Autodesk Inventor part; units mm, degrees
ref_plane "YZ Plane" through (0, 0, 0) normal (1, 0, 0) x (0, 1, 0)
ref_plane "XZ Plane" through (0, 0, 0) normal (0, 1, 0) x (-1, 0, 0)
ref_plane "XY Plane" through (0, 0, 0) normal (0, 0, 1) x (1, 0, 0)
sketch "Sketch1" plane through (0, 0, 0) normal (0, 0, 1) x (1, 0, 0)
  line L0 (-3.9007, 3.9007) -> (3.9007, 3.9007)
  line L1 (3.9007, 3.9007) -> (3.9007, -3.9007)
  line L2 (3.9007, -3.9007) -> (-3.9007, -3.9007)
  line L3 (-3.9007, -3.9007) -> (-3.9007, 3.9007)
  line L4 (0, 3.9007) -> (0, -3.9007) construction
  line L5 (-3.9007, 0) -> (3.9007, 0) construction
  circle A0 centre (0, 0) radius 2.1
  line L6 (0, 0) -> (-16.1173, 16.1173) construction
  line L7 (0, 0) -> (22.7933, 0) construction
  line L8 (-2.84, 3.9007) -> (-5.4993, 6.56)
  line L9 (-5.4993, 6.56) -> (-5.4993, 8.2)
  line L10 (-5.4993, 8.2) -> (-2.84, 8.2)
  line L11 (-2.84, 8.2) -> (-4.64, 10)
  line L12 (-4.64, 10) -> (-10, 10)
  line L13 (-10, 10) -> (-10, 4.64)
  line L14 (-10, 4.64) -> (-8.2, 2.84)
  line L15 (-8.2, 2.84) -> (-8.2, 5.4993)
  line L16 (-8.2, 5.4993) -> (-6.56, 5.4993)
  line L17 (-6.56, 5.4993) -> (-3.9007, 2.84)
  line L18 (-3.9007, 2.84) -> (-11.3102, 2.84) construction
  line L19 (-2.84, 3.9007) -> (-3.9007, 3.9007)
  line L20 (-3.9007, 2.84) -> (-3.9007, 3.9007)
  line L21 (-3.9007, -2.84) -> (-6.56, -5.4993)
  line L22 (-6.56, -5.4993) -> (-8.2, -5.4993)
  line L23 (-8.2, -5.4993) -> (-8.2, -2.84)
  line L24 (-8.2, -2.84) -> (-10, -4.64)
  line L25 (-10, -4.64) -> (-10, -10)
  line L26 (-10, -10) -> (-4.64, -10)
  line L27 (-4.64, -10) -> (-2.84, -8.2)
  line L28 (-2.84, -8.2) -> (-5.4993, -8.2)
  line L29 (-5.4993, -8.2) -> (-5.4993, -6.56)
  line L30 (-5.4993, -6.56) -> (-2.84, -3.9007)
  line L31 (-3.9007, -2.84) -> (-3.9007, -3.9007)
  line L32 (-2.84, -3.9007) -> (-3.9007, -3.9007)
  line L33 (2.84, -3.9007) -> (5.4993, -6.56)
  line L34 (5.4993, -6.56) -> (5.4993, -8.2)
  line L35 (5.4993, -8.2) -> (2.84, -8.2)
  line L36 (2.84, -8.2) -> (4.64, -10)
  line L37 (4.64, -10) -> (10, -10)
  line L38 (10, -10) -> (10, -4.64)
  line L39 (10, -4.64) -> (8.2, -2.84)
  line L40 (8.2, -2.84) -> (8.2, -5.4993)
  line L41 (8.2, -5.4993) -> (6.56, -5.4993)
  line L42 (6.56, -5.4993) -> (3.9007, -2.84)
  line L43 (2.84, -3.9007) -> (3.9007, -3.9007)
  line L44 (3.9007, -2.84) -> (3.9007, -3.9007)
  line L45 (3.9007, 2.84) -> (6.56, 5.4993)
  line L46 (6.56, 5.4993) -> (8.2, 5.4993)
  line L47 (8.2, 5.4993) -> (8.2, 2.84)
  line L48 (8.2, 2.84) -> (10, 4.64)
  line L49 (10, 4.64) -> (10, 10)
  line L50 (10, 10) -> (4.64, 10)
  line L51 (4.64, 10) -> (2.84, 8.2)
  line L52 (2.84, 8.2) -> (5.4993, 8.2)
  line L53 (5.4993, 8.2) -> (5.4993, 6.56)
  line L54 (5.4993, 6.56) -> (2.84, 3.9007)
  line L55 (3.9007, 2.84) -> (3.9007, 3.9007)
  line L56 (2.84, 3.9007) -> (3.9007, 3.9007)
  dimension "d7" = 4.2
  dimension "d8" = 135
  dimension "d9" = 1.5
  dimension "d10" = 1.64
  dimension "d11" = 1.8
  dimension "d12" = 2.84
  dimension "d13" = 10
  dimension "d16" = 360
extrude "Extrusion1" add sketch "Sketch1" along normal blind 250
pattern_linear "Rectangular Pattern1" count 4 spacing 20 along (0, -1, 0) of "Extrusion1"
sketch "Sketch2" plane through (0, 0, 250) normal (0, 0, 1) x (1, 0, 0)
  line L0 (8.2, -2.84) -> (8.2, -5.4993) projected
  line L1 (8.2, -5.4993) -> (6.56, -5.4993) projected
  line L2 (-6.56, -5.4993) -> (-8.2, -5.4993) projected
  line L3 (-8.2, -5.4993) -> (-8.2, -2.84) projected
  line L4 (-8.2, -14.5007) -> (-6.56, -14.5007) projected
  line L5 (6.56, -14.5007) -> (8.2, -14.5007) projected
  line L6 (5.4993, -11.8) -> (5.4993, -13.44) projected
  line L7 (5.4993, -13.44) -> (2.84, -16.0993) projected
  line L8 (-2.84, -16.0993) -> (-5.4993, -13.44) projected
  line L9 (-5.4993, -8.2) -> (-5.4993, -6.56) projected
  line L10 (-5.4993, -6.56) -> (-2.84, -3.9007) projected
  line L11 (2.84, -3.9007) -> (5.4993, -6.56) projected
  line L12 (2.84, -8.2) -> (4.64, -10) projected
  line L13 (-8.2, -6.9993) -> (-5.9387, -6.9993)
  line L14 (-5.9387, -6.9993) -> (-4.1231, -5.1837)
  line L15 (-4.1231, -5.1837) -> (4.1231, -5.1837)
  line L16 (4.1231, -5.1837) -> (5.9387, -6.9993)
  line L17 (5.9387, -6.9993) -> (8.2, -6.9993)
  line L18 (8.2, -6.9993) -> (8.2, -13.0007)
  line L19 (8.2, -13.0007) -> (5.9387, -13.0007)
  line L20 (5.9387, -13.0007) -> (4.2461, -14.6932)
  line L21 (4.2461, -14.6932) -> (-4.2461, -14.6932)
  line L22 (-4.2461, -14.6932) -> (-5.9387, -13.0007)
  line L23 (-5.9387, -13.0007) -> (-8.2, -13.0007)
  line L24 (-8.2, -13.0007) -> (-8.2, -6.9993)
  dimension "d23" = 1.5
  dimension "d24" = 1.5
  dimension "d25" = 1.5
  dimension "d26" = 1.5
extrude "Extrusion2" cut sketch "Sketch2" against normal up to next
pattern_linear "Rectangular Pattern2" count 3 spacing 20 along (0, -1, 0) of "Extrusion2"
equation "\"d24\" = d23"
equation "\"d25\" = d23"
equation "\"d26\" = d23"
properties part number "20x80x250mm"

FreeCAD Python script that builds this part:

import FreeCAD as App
import Part
import Sketcher


def add_polygon(sketch, points):
    """Adds a closed chain of lines whose ends are joined by coincident constraints."""
    first, n = sketch.GeometryCount, len(points)
    for a, b in zip(points, points[1:] + points[:1]):
        sketch.addGeometry(Part.LineSegment(App.Vector(*a, 0), App.Vector(*b, 0)), False)
    for i in range(n):
        sketch.addConstraint(Sketcher.Constraint("Coincident", first + i, 2, first + (i + 1) % n, 1))

doc = App.newDocument("Part")
params = doc.addObject("Spreadsheet::Sheet", "Params")
for row, (alias, value) in enumerate([
    ("sketch1_diameter", "4.2 mm"),
    ("sketch1_width", "1.64 mm"),
    ("pad1_length", "250 mm"),
    ("linearpattern_pitch", "20 mm"),
    ("pocket1_length", "250 mm"),
    ("linearpattern2_pitch", "20 mm"),
], start=1):
    params.set(f"A{row}", alias)
    params.set(f"B{row}", "=" + value)
    params.setAlias(f"B{row}", alias)

body = doc.addObject("PartDesign::Body", "Body")

sketch1 = body.newObject("Sketcher::SketchObject", "Sketch")
sketch1.AttachmentSupport = (doc.getObject("XY_Plane"), [""])
sketch1.MapMode = "FlatFace"
add_polygon(sketch1, [(-6.6, 5.5), (-3.9, 2.8), (-3.9, -2.8), (-6.6, -5.5), (-8.2, -5.5), (-8.2, -2.8), (-10, -4.6), (-10, -10), (-4.6, -10), (-2.8, -8.2), (-5.5, -8.2), (-5.5, -6.6), (-2.8, -3.9), (2.8, -3.9), (5.5, -6.6), (5.5, -8.2), (2.8, -8.2), (4.6, -10), (10, -10), (10, -4.6), (8.2, -2.8), (8.2, -5.5), (6.6, -5.5), (3.9, -2.8), (3.9, 2.8), (6.6, 5.5), (8.2, 5.5), (8.2, 2.8), (10, 4.6), (10, 10), (4.6, 10), (2.8, 8.2), (5.5, 8.2), (5.5, 6.6), (2.8, 3.9), (-2.8, 3.9), (-5.5, 6.6), (-5.5, 8.2), (-2.8, 8.2), (-4.6, 10), (-10, 10), (-10, 4.6), (-8.2, 2.8), (-8.2, 5.5)])
sketch1.addGeometry(Part.Circle(App.Vector(0, 0, 0), App.Vector(0, 0, 1), 2.1), False)
sketch1.addConstraint(Sketcher.Constraint("Vertical", 1))
sketch1.addConstraint(Sketcher.Constraint("Horizontal", 3))
sketch1.addConstraint(Sketcher.Constraint("Vertical", 4))
sketch1.addConstraint(Sketcher.Constraint("Vertical", 6))
sketch1.addConstraint(Sketcher.Constraint("Horizontal", 7))
sketch1.addConstraint(Sketcher.Constraint("Horizontal", 9))
sketch1.addConstraint(Sketcher.Constraint("Vertical", 10))
sketch1.addConstraint(Sketcher.Constraint("Horizontal", 12))
sketch1.addConstraint(Sketcher.Constraint("Vertical", 14))
sketch1.addConstraint(Sketcher.Constraint("Horizontal", 15))
sketch1.addConstraint(Sketcher.Constraint("Horizontal", 17))
sketch1.addConstraint(Sketcher.Constraint("Vertical", 18))
sketch1.addConstraint(Sketcher.Constraint("Vertical", 20))
sketch1.addConstraint(Sketcher.Constraint("Horizontal", 21))
sketch1.addConstraint(Sketcher.Constraint("Vertical", 23))
sketch1.addConstraint(Sketcher.Constraint("Horizontal", 25))
sketch1.addConstraint(Sketcher.Constraint("Vertical", 26))
sketch1.addConstraint(Sketcher.Constraint("Vertical", 28))
sketch1.addConstraint(Sketcher.Constraint("Horizontal", 29))
sketch1.addConstraint(Sketcher.Constraint("Horizontal", 31))
sketch1.addConstraint(Sketcher.Constraint("Vertical", 32))
sketch1.addConstraint(Sketcher.Constraint("Horizontal", 34))
sketch1.addConstraint(Sketcher.Constraint("Vertical", 36))
sketch1.addConstraint(Sketcher.Constraint("Horizontal", 37))
sketch1.addConstraint(Sketcher.Constraint("Horizontal", 39))
sketch1.addConstraint(Sketcher.Constraint("Vertical", 40))
sketch1.addConstraint(Sketcher.Constraint("Vertical", 42))
sketch1.addConstraint(Sketcher.Constraint("Horizontal", 43))
sketch1.addConstraint(Sketcher.Constraint("Coincident", 44, 3, -1, 1))
sketch1.addConstraint(Sketcher.Constraint("Symmetric", 0, 2, 22, 2, -1, 1))
sketch1.addConstraint(Sketcher.Constraint("Symmetric", 2, 2, 24, 2, -1, 1))
sketch1.addConstraint(Sketcher.Constraint("Symmetric", 4, 2, 26, 2, -1, 1))
sketch1.addConstraint(Sketcher.Constraint("Symmetric", 5, 2, 27, 2, -1, 1))
sketch1.addConstraint(Sketcher.Constraint("Symmetric", 7, 2, 29, 2, -1, 1))
sketch1.addConstraint(Sketcher.Constraint("Symmetric", 8, 2, 30, 2, -1, 1))
sketch1.addConstraint(Sketcher.Constraint("Symmetric", 10, 2, 32, 2, -1, 1))
sketch1.addConstraint(Sketcher.Constraint("Symmetric", 11, 2, 33, 2, -1, 1))
sketch1.addConstraint(Sketcher.Constraint("Symmetric", 13, 2, 35, 2, -1, 1))
sketch1.addConstraint(Sketcher.Constraint("Symmetric", 15, 2, 37, 2, -1, 1))
sketch1.addConstraint(Sketcher.Constraint("Symmetric", 16, 2, 38, 2, -1, 1))
sketch1.addConstraint(Sketcher.Constraint("Symmetric", 18, 2, 40, 2, -1, 1))
sketch1.addConstraint(Sketcher.Constraint("Symmetric", 19, 2, 41, 2, -1, 1))
sketch1.addConstraint(Sketcher.Constraint("Symmetric", 21, 2, 43, 2, -1, 1))
sketch1.addConstraint(Sketcher.Constraint("Symmetric", 10, 2, 13, 2, -2))
sketch1.addConstraint(Sketcher.Constraint("Symmetric", 8, 2, 15, 2, -2))
sketch1.addConstraint(Sketcher.Constraint("Symmetric", 7, 2, 16, 2, -2))
sketch1.addConstraint(Sketcher.Constraint("Symmetric", 5, 2, 18, 2, -2))
sketch1.addConstraint(Sketcher.Constraint("Symmetric", 4, 2, 19, 2, -2))
sketch1.addConstraint(Sketcher.Constraint("Symmetric", 2, 2, 21, 2, -2))
sketch1.addConstraint(Sketcher.Constraint("Perpendicular", 0, 2))
sketch1.addConstraint(Sketcher.Constraint("Parallel", 2, 5))
sketch1.addConstraint(Sketcher.Constraint("Parallel", 5, 8))
sketch1.addConstraint(Sketcher.Constraint("Parallel", 8, 11))
sketch1.addConstraint(Sketcher.Constraint("Perpendicular", 11, 13))
sketch1.addConstraint(Sketcher.Constraint("Parallel", 13, 16))
sketch1.addConstraint(Sketcher.Constraint("Perpendicular", 22, 24))
sketch1.addConstraint(Sketcher.Constraint("Perpendicular", 33, 35))
sketch1.addConstraint(Sketcher.Constraint("Horizontal", 1, 2, 4, 2))
sketch1.addConstraint(Sketcher.Constraint("Vertical", 8, 2, 11, 2))
sketch1.addConstraint(Sketcher.Constraint("Equal", 34, 1))
sketch1.addConstraint(Sketcher.Constraint("Equal", 37, 4))
sketch1.addConstraint(Sketcher.Constraint("Equal", 39, 6))
sketch1.addConstraint(Sketcher.Constraint("Equal", 43, 10))
sketch1.addConstraint(Sketcher.Constraint("Equal", 5, 8))
sketch1.addConstraint(Sketcher.Constraint("Diameter", 44, 4.2))
sketch1.addConstraint(Sketcher.Constraint("DistanceX", 5, 2, -1, 1, 10.0))
sketch1.addConstraint(Sketcher.Constraint("DistanceX", 3, 2, 3, 1, 1.64))
sketch1.addConstraint(Sketcher.Constraint("DistanceX", 5, 2, 3, 2, 1.8))
sketch1.addConstraint(Sketcher.Constraint("DistanceY", -1, 1, 0, 2, 2.84))
sketch1.addConstraint(Sketcher.Constraint("DistanceX", 9, 2, 9, 1, 2.6593))
sketch1.setExpression("Constraints[108]", "Params.sketch1_diameter")
sketch1.setExpression("Constraints[110]", "Params.sketch1_width")
pad1 = body.newObject("PartDesign::Pad", "Pad")
pad1.Profile = sketch1
pad1.setExpression("Length", "Params.pad1_length")
doc.recompute()

linearpattern = body.newObject("PartDesign::LinearPattern", "LinearPattern")
linearpattern.Originals = [pad1]
linearpattern.Direction = (doc.getObject("Y_Axis"), [""])
linearpattern.Mode = "offset"
linearpattern.setExpression("Offset", "Params.linearpattern_pitch")
linearpattern.Occurrences = 4
linearpattern.Reversed = True
body.Tip = linearpattern

sketch2 = body.newObject("Sketcher::SketchObject", "Sketch001")
sketch2.AttachmentSupport = (doc.getObject("XY_Plane"), [""])
sketch2.MapMode = "FlatFace"
sketch2.AttachmentOffset = App.Placement(App.Vector(0, 0, 250), App.Rotation())
add_polygon(sketch2, [(4.2, -14.7), (5.5, -13.4), (5.9, -13), (8.2, -13), (8.2, -7), (5.9, -7), (5.5, -6.6), (4.1, -5.2), (-4.1, -5.2), (-5.5, -6.6), (-5.9, -7), (-8.2, -7), (-8.2, -13), (-5.9, -13), (-5.5, -13.4), (-4.2, -14.7)])
sketch2.addConstraint(Sketcher.Constraint("Horizontal", 2))
sketch2.addConstraint(Sketcher.Constraint("Vertical", 3))
sketch2.addConstraint(Sketcher.Constraint("Horizontal", 4))
sketch2.addConstraint(Sketcher.Constraint("Horizontal", 7))
sketch2.addConstraint(Sketcher.Constraint("Horizontal", 10))
sketch2.addConstraint(Sketcher.Constraint("Vertical", 11))
sketch2.addConstraint(Sketcher.Constraint("Horizontal", 12))
sketch2.addConstraint(Sketcher.Constraint("Horizontal", 15))
sketch2.addConstraint(Sketcher.Constraint("Symmetric", 5, 2, 8, 2, -2))
sketch2.addConstraint(Sketcher.Constraint("Symmetric", 4, 2, 9, 2, -2))
sketch2.addConstraint(Sketcher.Constraint("Symmetric", 2, 2, 11, 2, -2))
sketch2.addConstraint(Sketcher.Constraint("Symmetric", 0, 2, 13, 2, -2))
sketch2.addConstraint(Sketcher.Constraint("Parallel", 0, 1))
sketch2.addConstraint(Sketcher.Constraint("Perpendicular", 1, 5))
sketch2.addConstraint(Sketcher.Constraint("Parallel", 5, 6))
sketch2.addConstraint(Sketcher.Constraint("Perpendicular", 6, 8))
sketch2.addConstraint(Sketcher.Constraint("Parallel", 8, 9))
sketch2.addConstraint(Sketcher.Constraint("Perpendicular", 9, 13))
sketch2.addConstraint(Sketcher.Constraint("Parallel", 13, 14))
sketch2.addConstraint(Sketcher.Constraint("Vertical", 1, 2, 4, 2))
sketch2.addConstraint(Sketcher.Constraint("Vertical", 0, 2, 5, 2))
sketch2.addConstraint(Sketcher.Constraint("DistanceX", -1, 1, 2, 2, 8.2))
sketch2.addConstraint(Sketcher.Constraint("DistanceY", 0, 2, -1, 1, 13.44))
sketch2.addConstraint(Sketcher.Constraint("DistanceY", 5, 2, -1, 1, 6.56))
sketch2.addConstraint(Sketcher.Constraint("DistanceX", 2, 1, 2, 2, 2.2613))
sketch2.addConstraint(Sketcher.Constraint("DistanceX", 7, 2, 7, 1, 8.2462))
sketch2.addConstraint(Sketcher.Constraint("DistanceX", 15, 1, 15, 2, 8.4922))
sketch2.addConstraint(Sketcher.Constraint("DistanceY", 3, 1, 3, 2, 6.0014))
pocket1 = body.newObject("PartDesign::Pocket", "Pocket")
pocket1.Profile = sketch2
pocket1.setExpression("Length", "Params.pocket1_length")
doc.recompute()

linearpattern2 = body.newObject("PartDesign::LinearPattern", "LinearPattern001")
linearpattern2.Originals = [pocket1]
linearpattern2.Direction = (doc.getObject("Y_Axis"), [""])
linearpattern2.Mode = "offset"
linearpattern2.setExpression("Offset", "Params.linearpattern2_pitch")
linearpattern2.Occurrences = 3
linearpattern2.Reversed = True
body.Tip = linearpattern2

doc.recompute()
